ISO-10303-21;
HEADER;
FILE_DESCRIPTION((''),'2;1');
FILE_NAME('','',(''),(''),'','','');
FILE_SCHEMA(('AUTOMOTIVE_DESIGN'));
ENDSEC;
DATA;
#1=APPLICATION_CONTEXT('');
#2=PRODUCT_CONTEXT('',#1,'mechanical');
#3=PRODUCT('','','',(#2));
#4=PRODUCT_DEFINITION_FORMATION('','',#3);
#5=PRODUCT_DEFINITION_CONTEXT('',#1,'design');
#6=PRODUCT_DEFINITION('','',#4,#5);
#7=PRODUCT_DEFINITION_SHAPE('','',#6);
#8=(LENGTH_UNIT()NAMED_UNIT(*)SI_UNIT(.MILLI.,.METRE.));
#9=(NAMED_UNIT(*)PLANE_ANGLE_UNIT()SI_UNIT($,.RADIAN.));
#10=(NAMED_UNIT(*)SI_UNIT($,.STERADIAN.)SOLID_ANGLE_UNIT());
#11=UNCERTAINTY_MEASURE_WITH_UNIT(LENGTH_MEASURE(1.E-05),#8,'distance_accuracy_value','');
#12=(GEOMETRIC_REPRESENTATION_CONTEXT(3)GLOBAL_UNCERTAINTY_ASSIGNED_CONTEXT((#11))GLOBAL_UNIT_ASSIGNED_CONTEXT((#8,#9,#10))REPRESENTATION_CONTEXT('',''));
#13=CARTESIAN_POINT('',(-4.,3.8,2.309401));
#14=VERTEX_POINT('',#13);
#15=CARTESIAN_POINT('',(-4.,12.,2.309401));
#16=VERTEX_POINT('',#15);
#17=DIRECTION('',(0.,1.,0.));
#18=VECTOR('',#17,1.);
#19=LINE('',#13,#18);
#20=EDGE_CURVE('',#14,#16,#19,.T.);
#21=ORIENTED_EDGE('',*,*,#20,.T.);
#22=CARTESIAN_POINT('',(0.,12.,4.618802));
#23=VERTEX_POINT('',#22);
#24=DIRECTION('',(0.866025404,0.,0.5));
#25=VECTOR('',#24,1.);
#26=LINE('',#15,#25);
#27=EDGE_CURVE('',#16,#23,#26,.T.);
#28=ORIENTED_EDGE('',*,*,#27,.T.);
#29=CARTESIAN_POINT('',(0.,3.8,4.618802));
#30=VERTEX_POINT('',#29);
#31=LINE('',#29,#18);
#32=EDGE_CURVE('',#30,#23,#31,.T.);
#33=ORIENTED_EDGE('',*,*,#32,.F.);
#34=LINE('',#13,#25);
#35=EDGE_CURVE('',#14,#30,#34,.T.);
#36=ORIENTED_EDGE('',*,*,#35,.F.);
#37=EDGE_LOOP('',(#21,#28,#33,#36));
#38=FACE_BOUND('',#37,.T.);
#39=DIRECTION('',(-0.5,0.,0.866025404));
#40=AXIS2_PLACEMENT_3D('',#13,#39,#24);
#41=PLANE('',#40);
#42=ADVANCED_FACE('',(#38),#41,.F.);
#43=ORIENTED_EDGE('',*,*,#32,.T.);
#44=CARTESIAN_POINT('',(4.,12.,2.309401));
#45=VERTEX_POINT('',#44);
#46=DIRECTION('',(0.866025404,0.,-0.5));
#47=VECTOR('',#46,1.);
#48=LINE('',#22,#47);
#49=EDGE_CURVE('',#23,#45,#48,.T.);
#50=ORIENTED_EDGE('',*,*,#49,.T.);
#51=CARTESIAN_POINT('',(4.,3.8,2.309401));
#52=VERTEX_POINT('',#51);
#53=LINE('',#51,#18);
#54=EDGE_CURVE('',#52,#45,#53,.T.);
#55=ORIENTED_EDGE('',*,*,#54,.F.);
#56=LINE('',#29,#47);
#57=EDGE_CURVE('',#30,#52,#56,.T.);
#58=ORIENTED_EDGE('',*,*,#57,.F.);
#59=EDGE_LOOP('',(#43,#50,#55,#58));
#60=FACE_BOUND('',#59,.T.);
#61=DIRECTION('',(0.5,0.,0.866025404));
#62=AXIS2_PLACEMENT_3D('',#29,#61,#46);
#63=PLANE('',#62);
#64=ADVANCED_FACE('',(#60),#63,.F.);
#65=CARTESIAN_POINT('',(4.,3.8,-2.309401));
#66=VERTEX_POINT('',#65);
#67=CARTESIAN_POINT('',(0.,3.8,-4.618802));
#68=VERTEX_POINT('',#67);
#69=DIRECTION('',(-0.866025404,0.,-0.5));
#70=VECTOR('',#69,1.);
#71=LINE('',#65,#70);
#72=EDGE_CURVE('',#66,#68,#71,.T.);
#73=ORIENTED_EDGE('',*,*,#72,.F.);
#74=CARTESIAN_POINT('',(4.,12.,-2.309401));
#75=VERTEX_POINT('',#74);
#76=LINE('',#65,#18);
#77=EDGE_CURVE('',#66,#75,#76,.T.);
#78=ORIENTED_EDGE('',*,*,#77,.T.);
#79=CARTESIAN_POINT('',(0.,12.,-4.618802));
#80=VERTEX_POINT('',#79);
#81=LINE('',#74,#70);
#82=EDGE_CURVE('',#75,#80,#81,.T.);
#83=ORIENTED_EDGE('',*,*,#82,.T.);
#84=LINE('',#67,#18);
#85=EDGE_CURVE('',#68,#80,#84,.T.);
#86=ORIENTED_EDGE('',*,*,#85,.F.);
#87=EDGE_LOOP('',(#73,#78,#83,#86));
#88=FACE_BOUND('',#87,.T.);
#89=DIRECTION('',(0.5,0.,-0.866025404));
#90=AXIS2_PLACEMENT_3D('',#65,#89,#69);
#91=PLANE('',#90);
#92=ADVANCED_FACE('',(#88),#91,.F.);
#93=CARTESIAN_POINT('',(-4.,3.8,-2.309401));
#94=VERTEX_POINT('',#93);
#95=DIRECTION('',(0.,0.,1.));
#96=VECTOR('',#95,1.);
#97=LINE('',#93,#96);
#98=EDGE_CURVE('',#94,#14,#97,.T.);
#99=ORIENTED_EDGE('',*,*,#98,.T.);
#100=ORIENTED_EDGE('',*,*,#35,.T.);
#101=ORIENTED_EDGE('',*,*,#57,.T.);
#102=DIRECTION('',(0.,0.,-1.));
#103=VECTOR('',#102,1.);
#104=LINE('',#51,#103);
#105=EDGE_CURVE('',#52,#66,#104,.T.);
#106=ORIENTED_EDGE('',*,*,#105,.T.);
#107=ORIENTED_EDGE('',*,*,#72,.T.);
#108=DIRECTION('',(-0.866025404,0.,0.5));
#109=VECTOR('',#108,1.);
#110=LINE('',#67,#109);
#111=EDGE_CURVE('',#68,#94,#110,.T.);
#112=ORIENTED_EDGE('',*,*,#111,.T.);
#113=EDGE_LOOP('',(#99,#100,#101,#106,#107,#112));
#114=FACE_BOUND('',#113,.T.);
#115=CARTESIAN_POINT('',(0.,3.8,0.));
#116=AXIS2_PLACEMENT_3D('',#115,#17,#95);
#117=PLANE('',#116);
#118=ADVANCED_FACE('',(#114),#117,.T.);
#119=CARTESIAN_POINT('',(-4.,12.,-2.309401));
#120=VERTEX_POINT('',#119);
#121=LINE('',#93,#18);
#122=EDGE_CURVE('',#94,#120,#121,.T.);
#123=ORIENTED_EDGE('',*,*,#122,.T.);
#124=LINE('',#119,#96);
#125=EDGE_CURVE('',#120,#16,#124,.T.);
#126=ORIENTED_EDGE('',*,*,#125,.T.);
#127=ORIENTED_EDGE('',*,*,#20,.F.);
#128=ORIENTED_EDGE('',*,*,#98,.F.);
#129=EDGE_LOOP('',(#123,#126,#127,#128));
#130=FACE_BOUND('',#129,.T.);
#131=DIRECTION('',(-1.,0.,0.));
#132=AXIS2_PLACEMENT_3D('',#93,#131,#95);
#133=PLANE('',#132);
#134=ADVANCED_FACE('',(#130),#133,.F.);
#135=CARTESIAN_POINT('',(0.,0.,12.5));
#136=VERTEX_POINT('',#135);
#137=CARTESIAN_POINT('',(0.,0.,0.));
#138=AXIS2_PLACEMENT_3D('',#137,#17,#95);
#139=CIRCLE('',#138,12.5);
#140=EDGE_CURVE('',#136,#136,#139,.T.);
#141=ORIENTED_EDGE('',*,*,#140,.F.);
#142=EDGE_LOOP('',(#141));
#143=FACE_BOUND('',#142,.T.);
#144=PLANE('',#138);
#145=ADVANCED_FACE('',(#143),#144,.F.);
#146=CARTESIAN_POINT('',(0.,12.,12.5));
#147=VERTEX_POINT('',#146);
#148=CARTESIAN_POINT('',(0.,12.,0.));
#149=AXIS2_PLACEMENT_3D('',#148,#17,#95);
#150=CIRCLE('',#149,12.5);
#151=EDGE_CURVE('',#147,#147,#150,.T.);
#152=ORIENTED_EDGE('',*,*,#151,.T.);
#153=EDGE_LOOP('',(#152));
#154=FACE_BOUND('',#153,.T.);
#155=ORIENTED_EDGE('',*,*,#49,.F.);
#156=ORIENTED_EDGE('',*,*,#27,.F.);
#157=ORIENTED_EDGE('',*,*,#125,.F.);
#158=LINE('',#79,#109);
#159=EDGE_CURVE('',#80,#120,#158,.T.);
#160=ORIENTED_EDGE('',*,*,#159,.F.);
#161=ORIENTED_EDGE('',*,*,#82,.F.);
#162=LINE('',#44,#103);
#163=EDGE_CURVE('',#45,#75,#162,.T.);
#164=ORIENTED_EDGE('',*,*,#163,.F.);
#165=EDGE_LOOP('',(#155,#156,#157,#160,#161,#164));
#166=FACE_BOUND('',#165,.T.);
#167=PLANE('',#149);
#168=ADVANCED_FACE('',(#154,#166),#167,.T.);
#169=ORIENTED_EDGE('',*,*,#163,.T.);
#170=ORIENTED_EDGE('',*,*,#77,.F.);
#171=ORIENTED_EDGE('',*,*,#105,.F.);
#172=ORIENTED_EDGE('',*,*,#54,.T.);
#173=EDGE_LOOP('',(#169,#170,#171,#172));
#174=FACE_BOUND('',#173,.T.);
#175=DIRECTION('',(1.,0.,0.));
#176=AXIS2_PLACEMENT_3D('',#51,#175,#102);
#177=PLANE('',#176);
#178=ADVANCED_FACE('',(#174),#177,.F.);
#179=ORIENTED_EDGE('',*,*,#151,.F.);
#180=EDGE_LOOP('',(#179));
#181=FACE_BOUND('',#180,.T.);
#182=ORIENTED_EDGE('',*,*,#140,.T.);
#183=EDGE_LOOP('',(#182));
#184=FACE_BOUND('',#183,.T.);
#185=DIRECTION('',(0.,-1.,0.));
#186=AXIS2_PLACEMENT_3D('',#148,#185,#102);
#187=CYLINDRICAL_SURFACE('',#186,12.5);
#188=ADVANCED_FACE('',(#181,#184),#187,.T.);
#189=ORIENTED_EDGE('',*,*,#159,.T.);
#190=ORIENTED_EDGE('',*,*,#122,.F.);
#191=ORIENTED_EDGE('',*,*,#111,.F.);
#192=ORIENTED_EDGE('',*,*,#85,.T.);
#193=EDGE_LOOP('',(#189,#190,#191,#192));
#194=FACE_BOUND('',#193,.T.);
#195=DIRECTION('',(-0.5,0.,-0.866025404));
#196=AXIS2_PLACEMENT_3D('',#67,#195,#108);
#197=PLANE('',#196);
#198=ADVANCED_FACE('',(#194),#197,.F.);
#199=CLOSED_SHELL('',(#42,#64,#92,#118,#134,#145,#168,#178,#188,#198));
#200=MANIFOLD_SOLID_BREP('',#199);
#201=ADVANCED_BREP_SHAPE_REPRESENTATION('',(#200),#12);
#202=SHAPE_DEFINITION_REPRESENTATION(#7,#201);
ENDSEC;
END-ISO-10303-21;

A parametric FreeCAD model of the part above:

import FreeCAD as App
import Part
import Sketcher
Q = App.Units.Quantity

doc = App.newDocument("Part")
body = doc.addObject("PartDesign::Body", "Body")

# Sketch on XZ plane
sketch1 = doc.addObject("Sketcher::SketchObject", "Sketch")
body.addObject(sketch1)
sketch1.AttachmentSupport = (doc.XZ_Plane, [""])
sketch1.MapMode = "FlatFace"
sketch1.addGeometry(Part.Circle(App.Vector(0, 0, 0), App.Vector(0, 0, 1), 12), False)
sketch1.addConstraint([
    Sketcher.Constraint("Coincident", 0, 3, -1, 1),
    Sketcher.Constraint("Diameter", 0, Q("25 mm")),
])
pad1 = doc.addObject("PartDesign::Pad", "Pad")
body.addObject(pad1)
pad1.Profile = sketch1
pad1.Length = 12
pad1.Reversed = True

# Sketch on XZ plane
sketch2 = doc.addObject("Sketcher::SketchObject", "Sketch001")
body.addObject(sketch2)
sketch2.AttachmentSupport = (doc.XZ_Plane, [""])
sketch2.MapMode = "FlatFace"
sketch2.AttachmentOffset = App.Placement(App.Vector(0, 0, -12), App.Rotation())
sketch2.addGeometry([
    Part.LineSegment(App.Vector(0, 4.6, 0), App.Vector(4, 2.3, 0)),  # 0
    Part.LineSegment(App.Vector(4, 2.3, 0), App.Vector(4, -2.3, 0)),  # 1
    Part.LineSegment(App.Vector(4, -2.3, 0), App.Vector(0, -4.6, 0)),  # 2
    Part.LineSegment(App.Vector(0, -4.6, 0), App.Vector(-4, -2.3, 0)),  # 3
    Part.LineSegment(App.Vector(-4, -2.3, 0), App.Vector(-4, 2.3, 0)),  # 4
    Part.LineSegment(App.Vector(-4, 2.3, 0), App.Vector(0, 4.6, 0)),  # 5
], False)
sketch2.addConstraint([
    Sketcher.Constraint("Coincident", 0, 2, 1, 1),
    Sketcher.Constraint("Coincident", 1, 2, 2, 1),
    Sketcher.Constraint("Coincident", 2, 2, 3, 1),
    Sketcher.Constraint("Coincident", 3, 2, 4, 1),
    Sketcher.Constraint("Coincident", 4, 2, 5, 1),
    Sketcher.Constraint("Coincident", 5, 2, 0, 1),
    Sketcher.Constraint("Vertical", 1),
    Sketcher.Constraint("Vertical", 4),
    Sketcher.Constraint("Symmetric", 0, 2, 3, 2, -1, 1),
    Sketcher.Constraint("Symmetric", 2, 2, 5, 2, -1, 1),
    Sketcher.Constraint("PointOnObject", 2, 2, -2),
    Sketcher.Constraint("Parallel", 2, 5),
    Sketcher.Constraint("Horizontal", 1, 2, 3, 2),
    Sketcher.Constraint("Angle", 0, Q("-30 deg")),
    Sketcher.Constraint("DistanceX", -1, 1, 0, 2, Q("4 mm")),
    Sketcher.Constraint("DistanceY", -1, 1, 0, 2, Q("2.309401 mm")),
])
pocket1 = doc.addObject("PartDesign::Pocket", "Pocket")
body.addObject(pocket1)
pocket1.Profile = sketch2
pocket1.Length = 8.2
pocket1.Reversed = True

doc.recompute()
